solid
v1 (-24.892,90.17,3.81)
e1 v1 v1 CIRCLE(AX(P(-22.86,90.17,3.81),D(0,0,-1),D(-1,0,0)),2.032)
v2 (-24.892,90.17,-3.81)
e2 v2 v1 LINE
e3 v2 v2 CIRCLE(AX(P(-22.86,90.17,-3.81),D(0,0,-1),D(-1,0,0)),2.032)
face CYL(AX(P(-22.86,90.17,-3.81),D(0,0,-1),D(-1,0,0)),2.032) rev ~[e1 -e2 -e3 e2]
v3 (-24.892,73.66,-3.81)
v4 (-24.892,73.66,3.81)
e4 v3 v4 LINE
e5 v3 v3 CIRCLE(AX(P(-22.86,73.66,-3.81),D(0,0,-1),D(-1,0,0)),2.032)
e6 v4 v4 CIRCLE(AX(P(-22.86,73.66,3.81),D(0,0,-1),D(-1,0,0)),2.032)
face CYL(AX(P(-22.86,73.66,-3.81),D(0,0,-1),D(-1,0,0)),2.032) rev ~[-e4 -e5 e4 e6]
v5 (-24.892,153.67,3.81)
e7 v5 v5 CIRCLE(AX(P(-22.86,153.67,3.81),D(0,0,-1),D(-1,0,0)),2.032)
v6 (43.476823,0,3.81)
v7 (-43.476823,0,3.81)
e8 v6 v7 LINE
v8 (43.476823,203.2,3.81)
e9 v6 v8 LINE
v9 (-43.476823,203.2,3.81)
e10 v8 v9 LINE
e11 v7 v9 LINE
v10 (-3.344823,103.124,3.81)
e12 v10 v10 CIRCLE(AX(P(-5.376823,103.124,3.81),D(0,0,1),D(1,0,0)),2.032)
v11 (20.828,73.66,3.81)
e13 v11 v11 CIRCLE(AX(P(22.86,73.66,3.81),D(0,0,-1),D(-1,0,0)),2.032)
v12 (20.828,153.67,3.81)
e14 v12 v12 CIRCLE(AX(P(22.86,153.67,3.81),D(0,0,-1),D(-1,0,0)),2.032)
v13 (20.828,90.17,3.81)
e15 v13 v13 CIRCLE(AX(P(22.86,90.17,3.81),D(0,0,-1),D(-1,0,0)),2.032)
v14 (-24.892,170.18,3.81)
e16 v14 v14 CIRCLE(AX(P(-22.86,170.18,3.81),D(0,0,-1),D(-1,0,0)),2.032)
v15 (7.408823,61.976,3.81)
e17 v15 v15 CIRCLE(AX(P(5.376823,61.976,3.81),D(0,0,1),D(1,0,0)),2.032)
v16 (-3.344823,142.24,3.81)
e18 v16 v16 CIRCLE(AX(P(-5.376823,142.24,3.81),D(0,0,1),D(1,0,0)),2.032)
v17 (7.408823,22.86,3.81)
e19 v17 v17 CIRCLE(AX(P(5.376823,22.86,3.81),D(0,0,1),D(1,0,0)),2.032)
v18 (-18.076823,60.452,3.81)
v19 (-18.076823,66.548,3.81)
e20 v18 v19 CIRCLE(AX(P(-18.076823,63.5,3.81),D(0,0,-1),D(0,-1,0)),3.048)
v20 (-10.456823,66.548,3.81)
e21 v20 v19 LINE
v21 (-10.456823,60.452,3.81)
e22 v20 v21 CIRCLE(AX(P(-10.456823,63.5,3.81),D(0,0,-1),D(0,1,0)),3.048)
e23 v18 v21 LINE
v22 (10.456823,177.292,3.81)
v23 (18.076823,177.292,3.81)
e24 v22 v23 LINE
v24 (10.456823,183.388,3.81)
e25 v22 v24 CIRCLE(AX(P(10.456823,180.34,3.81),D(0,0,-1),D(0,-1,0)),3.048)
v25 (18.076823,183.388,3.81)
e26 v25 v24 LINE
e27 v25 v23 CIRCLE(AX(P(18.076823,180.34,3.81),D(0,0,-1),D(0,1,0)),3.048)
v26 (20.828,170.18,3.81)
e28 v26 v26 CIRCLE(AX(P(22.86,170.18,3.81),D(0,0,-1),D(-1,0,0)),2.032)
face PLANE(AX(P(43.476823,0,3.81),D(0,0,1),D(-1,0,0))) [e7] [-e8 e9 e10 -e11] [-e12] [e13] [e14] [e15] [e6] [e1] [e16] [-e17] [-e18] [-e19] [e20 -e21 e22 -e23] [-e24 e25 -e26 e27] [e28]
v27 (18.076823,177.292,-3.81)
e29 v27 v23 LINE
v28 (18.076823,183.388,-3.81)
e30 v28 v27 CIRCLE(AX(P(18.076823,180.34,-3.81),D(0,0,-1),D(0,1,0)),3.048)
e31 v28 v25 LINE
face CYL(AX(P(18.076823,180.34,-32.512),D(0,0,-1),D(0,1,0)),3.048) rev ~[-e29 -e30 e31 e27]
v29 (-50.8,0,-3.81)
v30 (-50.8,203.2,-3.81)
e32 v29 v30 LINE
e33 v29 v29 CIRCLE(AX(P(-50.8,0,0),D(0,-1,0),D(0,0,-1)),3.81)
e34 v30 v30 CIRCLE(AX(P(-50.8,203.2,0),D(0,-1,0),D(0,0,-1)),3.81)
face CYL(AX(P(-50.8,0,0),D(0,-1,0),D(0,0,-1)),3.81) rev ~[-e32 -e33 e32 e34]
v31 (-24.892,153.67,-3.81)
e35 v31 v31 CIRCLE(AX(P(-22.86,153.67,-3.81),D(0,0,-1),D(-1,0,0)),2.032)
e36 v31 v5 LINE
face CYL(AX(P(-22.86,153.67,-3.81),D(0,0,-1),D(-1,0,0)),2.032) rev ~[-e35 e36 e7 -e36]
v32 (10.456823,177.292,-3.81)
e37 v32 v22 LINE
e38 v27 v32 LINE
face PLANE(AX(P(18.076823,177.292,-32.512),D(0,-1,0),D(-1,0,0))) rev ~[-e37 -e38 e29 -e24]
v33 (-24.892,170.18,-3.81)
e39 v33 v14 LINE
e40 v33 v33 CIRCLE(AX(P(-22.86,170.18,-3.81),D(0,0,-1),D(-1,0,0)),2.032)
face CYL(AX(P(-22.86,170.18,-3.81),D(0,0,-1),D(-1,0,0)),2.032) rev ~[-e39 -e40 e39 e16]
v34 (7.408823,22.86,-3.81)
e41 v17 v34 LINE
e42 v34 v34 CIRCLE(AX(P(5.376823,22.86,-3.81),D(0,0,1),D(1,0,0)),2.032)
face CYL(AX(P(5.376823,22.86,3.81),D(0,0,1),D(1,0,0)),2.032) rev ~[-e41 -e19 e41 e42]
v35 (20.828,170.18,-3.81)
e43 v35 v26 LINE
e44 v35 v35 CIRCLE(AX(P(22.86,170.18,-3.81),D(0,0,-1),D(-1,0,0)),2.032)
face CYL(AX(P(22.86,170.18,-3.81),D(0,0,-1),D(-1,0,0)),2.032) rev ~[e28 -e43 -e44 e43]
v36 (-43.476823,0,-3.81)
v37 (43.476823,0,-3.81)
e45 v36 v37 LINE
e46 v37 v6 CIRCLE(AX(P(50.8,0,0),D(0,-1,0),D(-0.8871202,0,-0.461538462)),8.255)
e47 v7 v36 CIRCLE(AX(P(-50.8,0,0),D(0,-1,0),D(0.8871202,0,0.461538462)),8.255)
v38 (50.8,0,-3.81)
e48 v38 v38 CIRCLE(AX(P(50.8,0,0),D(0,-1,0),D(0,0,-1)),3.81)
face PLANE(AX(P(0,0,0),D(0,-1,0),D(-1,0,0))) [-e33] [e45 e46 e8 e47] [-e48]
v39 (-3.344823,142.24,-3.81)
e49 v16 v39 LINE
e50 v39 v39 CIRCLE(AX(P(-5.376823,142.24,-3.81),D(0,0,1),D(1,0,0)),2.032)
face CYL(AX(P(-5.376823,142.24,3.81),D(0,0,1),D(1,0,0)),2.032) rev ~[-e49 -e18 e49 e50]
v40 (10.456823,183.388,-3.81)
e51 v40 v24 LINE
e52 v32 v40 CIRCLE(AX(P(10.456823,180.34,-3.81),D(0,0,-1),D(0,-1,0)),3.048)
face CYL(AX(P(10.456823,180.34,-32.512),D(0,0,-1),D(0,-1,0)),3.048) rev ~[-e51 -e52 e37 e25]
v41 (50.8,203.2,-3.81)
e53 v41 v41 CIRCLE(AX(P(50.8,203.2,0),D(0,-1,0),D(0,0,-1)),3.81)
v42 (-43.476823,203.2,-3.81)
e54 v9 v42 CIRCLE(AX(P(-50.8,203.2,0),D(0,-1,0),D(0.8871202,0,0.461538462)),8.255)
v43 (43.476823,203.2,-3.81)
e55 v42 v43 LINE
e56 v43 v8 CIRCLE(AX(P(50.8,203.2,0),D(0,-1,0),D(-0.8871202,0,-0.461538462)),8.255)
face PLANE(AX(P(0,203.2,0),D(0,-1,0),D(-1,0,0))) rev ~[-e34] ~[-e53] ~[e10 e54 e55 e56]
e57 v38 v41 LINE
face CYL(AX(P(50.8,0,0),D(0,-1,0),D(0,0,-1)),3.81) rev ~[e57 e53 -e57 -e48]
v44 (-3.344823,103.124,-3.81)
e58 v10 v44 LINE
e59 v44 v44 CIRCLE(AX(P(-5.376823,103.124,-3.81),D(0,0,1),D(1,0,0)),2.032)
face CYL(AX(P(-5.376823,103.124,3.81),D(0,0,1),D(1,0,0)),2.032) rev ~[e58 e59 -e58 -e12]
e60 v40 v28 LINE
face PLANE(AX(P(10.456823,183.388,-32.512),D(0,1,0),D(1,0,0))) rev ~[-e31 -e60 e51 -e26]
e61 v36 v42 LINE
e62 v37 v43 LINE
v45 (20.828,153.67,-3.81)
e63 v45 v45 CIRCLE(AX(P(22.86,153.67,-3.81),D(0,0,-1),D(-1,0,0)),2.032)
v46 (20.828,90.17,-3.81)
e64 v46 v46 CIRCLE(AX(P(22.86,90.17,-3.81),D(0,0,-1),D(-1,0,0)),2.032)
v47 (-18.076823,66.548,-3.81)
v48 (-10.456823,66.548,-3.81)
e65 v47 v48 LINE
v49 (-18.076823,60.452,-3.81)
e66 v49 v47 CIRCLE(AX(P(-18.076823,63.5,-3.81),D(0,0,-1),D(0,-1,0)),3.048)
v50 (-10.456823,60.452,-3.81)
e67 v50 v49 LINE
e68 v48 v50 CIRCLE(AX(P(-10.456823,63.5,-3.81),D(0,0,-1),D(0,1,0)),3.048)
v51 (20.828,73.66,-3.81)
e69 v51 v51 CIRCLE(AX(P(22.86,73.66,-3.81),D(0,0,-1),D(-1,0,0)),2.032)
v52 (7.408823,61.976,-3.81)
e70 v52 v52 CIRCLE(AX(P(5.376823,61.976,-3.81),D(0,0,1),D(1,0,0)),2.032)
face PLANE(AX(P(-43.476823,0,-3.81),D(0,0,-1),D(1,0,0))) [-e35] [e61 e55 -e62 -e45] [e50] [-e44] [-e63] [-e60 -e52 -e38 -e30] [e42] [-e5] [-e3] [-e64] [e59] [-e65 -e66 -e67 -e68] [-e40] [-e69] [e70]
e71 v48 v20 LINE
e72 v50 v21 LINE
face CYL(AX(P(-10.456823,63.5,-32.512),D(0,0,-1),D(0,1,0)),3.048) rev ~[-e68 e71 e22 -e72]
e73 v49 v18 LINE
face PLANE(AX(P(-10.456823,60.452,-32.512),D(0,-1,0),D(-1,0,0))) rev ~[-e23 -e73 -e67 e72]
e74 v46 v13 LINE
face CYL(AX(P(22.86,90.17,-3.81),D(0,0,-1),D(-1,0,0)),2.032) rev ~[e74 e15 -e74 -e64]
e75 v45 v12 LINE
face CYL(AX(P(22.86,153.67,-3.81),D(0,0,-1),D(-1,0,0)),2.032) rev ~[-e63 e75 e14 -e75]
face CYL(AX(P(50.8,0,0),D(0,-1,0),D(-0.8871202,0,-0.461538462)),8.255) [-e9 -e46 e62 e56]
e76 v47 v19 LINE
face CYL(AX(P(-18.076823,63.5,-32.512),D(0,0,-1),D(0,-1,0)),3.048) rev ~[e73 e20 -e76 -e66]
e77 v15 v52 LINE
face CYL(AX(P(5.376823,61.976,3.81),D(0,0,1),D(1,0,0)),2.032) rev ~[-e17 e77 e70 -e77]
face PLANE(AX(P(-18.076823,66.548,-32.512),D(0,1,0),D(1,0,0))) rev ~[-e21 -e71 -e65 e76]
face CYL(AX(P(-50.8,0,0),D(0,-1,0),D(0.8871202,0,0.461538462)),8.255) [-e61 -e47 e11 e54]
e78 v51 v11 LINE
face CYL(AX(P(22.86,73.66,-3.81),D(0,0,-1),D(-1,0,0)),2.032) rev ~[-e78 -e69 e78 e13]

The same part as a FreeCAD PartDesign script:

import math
import FreeCAD as App
import Part
import Sketcher

V = App.Vector
Q = App.Units.Quantity

doc = App.newDocument("Part")
body = doc.addObject("PartDesign::Body", "Body")

sketch1 = doc.addObject("Sketcher::SketchObject", "Sketch")
body.addObject(sketch1)
sketch1.AttachmentSupport = (doc.XZ_Plane, [""])
sketch1.MapMode = "FlatFace"
sketch1.addGeometry(Part.LineSegment(V(43, -4, 0), V(-43, -4, 0)), False)
sketch1.addGeometry(Part.ArcOfCircle(Part.Circle(V(-51, 0, 0), V(0, 0, 1), 8), math.radians(27), math.radians(333)), False)
sketch1.addGeometry(Part.LineSegment(V(-43, 4, 0), V(43, 4, 0)), False)
sketch1.addGeometry(Part.ArcOfCircle(Part.Circle(V(51, 0, 0), V(0, 0, 1), 8), math.radians(-153), math.radians(153)), False)
sketch1.addConstraint(Sketcher.Constraint("Coincident", 0, 2, 1, 2))
sketch1.addConstraint(Sketcher.Constraint("Coincident", 1, 1, 2, 1))
sketch1.addConstraint(Sketcher.Constraint("Coincident", 2, 2, 3, 2))
sketch1.addConstraint(Sketcher.Constraint("Coincident", 3, 1, 0, 1))
sketch1.addConstraint(Sketcher.Constraint("Horizontal", 0))
sketch1.addConstraint(Sketcher.Constraint("Horizontal", 2))
sketch1.addConstraint(Sketcher.Constraint("Equal", 1, 3))
sketch1.addConstraint(Sketcher.Constraint("Symmetric", 1, 3, 3, 3, -1, 1))
sketch1.addConstraint(Sketcher.Constraint("Symmetric", 0, 2, 1, 1, -1))
sketch1.addConstraint(Sketcher.Constraint("DistanceX", 1, 3, -1, 1, Q("2 in")))
sketch1.addConstraint(Sketcher.Constraint("Radius", 1, Q("0.325 in")))
sketch1.addConstraint(Sketcher.Constraint("DistanceY", 0, 2, 1, 1, Q("0.3 in")))
pad1 = doc.addObject("PartDesign::Pad", "Pad")
body.addObject(pad1)
pad1.Profile = sketch1
pad1.Length = Q("8 in")
pad1.Reversed = True

sketch2 = doc.addObject("Sketcher::SketchObject", "Sketch001")
body.addObject(sketch2)
sketch2.AttachmentSupport = (doc.XZ_Plane, [""])
sketch2.MapMode = "FlatFace"
sketch2.addGeometry(Part.Circle(V(-50.8, 0, 0), V(0, 0, 1), 3.8), False)
sketch2.addGeometry(Part.Circle(V(50.8, 0, 0), V(0, 0, 1), 3.8), False)
sketch2.addConstraint(Sketcher.Constraint("Equal", 0, 1))
sketch2.addConstraint(Sketcher.Constraint("Symmetric", 0, 3, 1, 3, -1, 1))
sketch2.addConstraint(Sketcher.Constraint("PointOnObject", 0, 3, -1))
sketch2.addConstraint(Sketcher.Constraint("Diameter", 0, Q("0.3 in")))
sketch2.addConstraint(Sketcher.Constraint("DistanceX", 0, 3, -1, 1, Q("2 in")))
pocket1 = doc.addObject("PartDesign::Pocket", "Pocket")
body.addObject(pocket1)
pocket1.Profile = sketch2
pocket1.Length = Q("8 in")

sketch3 = doc.addObject("Sketcher::SketchObject", "Sketch002")
body.addObject(sketch3)
sketch3.AttachmentSupport = (doc.XY_Plane, [""])
sketch3.MapMode = "FlatFace"
sketch3.AttachmentOffset = App.Placement(V(0, 0, 0.15 * 25.4), App.Rotation())
sketch3.addGeometry(Part.LineSegment(V(10.5, 177.3, 0), V(18.1, 177.3, 0)), False)
sketch3.addGeometry(Part.ArcOfCircle(Part.Circle(V(18.1, 180.3, 0), V(0, 0, 1), 3), math.radians(-90), math.radians(90)), False)
sketch3.addGeometry(Part.LineSegment(V(18.1, 183.4, 0), V(10.5, 183.4, 0)), False)
sketch3.addGeometry(Part.ArcOfCircle(Part.Circle(V(10.5, 180.3, 0), V(0, 0, 1), 3), math.radians(90), math.radians(270)), False)
sketch3.addGeometry(Part.LineSegment(V(-10.5, 66.5, 0), V(-18.1, 66.5, 0)), False)
sketch3.addGeometry(Part.ArcOfCircle(Part.Circle(V(-18.1, 63.5, 0), V(0, 0, 1), 3), math.radians(90), math.radians(270)), False)
sketch3.addGeometry(Part.LineSegment(V(-18.1, 60.5, 0), V(-10.5, 60.5, 0)), False)
sketch3.addGeometry(Part.ArcOfCircle(Part.Circle(V(-10.5, 63.5, 0), V(0, 0, 1), 3), math.radians(-90), math.radians(90)), False)
sketch3.addConstraint(Sketcher.Constraint("Tangent", 0, 2, 1, 1))
sketch3.addConstraint(Sketcher.Constraint("Tangent", 1, 2, 2, 1))
sketch3.addConstraint(Sketcher.Constraint("Tangent", 2, 2, 3, 1))
sketch3.addConstraint(Sketcher.Constraint("Tangent", 3, 2, 0, 1))
sketch3.addConstraint(Sketcher.Constraint("Tangent", 4, 2, 5, 1))
sketch3.addConstraint(Sketcher.Constraint("Tangent", 5, 2, 6, 1))
sketch3.addConstraint(Sketcher.Constraint("Tangent", 6, 2, 7, 1))
sketch3.addConstraint(Sketcher.Constraint("Tangent", 7, 2, 4, 1))
sketch3.addConstraint(Sketcher.Constraint("Horizontal", 0))
sketch3.addConstraint(Sketcher.Constraint("Horizontal", 2))
sketch3.addConstraint(Sketcher.Constraint("Horizontal", 4))
sketch3.addConstraint(Sketcher.Constraint("Horizontal", 6))
sketch3.addConstraint(Sketcher.Constraint("Equal", 3, 5))
sketch3.addConstraint(Sketcher.Constraint("Equal", 2, 4))
sketch3.addConstraint(Sketcher.Constraint("Radius", 1, Q("0.12 in")))
sketch3.addConstraint(Sketcher.Constraint("DistanceX", 0, 1, 0, 2, Q("0.3 in")))
sketch3.addConstraint(Sketcher.Constraint("DistanceY", -1, 1, 1, 3, Q("7.1 in")))
sketch3.addConstraint(Sketcher.Constraint("DistanceY", -1, 1, 5, 3, Q("2.5 in")))
sketch3.addConstraint(Sketcher.Constraint("DistanceX", -1, 1, 1, 3, Q("18.076823 mm")))
sketch3.addConstraint(Sketcher.Constraint("DistanceX", 5, 3, -1, 1, Q("18.076823 mm")))
pocket2 = doc.addObject("PartDesign::Pocket", "Pocket001")
body.addObject(pocket2)
pocket2.Profile = sketch3
pocket2.Type = "ThroughAll"
pocket2.Midplane = True

sketch4 = doc.addObject("Sketcher::SketchObject", "Sketch003")
body.addObject(sketch4)
sketch4.AttachmentSupport = (doc.XY_Plane, [""])
sketch4.MapMode = "FlatFace"
sketch4.AttachmentOffset = App.Placement(V(0, 0, -0.15 * 25.4), App.Rotation())
sketch4.addGeometry(Part.Circle(V(22.9, 170.2, 0), V(0, 0, 1), 2), False)
sketch4.addGeometry(Part.Circle(V(22.9, 153.7, 0), V(0, 0, 1), 2), False)
sketch4.addGeometry(Part.Circle(V(-22.9, 170.2, 0), V(0, 0, 1), 2), False)
sketch4.addGeometry(Part.Circle(V(-22.9, 153.7, 0), V(0, 0, 1), 2), False)
sketch4.addGeometry(Part.Circle(V(22.9, 90.2, 0), V(0, 0, 1), 2), False)
sketch4.addGeometry(Part.Circle(V(22.9, 73.7, 0), V(0, 0, 1), 2), False)
sketch4.addGeometry(Part.Circle(V(-22.9, 90.2, 0), V(0, 0, 1), 2), False)
sketch4.addGeometry(Part.Circle(V(-22.9, 73.7, 0), V(0, 0, 1), 2), False)
sketch4.addConstraint(Sketcher.Constraint("Equal", 0, 1))
sketch4.addConstraint(Sketcher.Constraint("Equal", 1, 2))
sketch4.addConstraint(Sketcher.Constraint("Equal", 2, 3))
sketch4.addConstraint(Sketcher.Constraint("Equal", 3, 4))
sketch4.addConstraint(Sketcher.Constraint("Equal", 4, 5))
sketch4.addConstraint(Sketcher.Constraint("Equal", 5, 6))
sketch4.addConstraint(Sketcher.Constraint("Equal", 6, 7))
sketch4.addConstraint(Sketcher.Constraint("Symmetric", 0, 3, 2, 3, -2))
sketch4.addConstraint(Sketcher.Constraint("Symmetric", 1, 3, 3, 3, -2))
sketch4.addConstraint(Sketcher.Constraint("Symmetric", 4, 3, 6, 3, -2))
sketch4.addConstraint(Sketcher.Constraint("Symmetric", 5, 3, 7, 3, -2))
sketch4.addConstraint(Sketcher.Constraint("Vertical", 0, 3, 1, 3))
sketch4.addConstraint(Sketcher.Constraint("Vertical", 1, 3, 4, 3))
sketch4.addConstraint(Sketcher.Constraint("Vertical", 4, 3, 5, 3))
sketch4.addConstraint(Sketcher.Constraint("Diameter", 0, Q("0.16 in")))
sketch4.addConstraint(Sketcher.Constraint("DistanceX", -1, 1, 0, 3, Q("0.9 in")))
sketch4.addConstraint(Sketcher.Constraint("DistanceY", -1, 1, 0, 3, Q("6.7 in")))
sketch4.addConstraint(Sketcher.Constraint("DistanceY", -1, 1, 5, 3, Q("2.9 in")))
sketch4.addConstraint(Sketcher.Constraint("DistanceY", 4, 3, 1, 3, Q("2.5 in")))
sketch4.addConstraint(Sketcher.Constraint("DistanceY", -1, 1, 1, 3, Q("6.05 in")))
pocket3 = doc.addObject("PartDesign::Pocket", "Pocket002")
body.addObject(pocket3)
pocket3.Profile = sketch4
pocket3.Length = Q("1.81 in")
pocket3.Reversed = True

sketch5 = doc.addObject("Sketcher::SketchObject", "Sketch004")
body.addObject(sketch5)
sketch5.AttachmentSupport = (doc.XY_Plane, [""])
sketch5.MapMode = "FlatFace"
sketch5.AttachmentOffset = App.Placement(V(0, 0, 0.15 * 25.4), App.Rotation())
sketch5.addGeometry(Part.Circle(V(5.4, 62, 0), V(0, 0, 1), 2), False)
sketch5.addGeometry(Part.Circle(V(5.4, 22.9, 0), V(0, 0, 1), 2), False)
sketch5.addGeometry(Part.Circle(V(-5.4, 142.2, 0), V(0, 0, 1), 2), False)
sketch5.addGeometry(Part.Circle(V(-5.4, 103.1, 0), V(0, 0, 1), 2), False)
sketch5.addConstraint(Sketcher.Constraint("Equal", 0, 1))
sketch5.addConstraint(Sketcher.Constraint("Equal", 1, 2))
sketch5.addConstraint(Sketcher.Constraint("Equal", 2, 3))
sketch5.addConstraint(Sketcher.Constraint("Vertical", 0, 3, 1, 3))
sketch5.addConstraint(Sketcher.Constraint("Vertical", 2, 3, 3, 3))
sketch5.addConstraint(Sketcher.Constraint("Diameter", 0, Q("0.16 in")))
sketch5.addConstraint(Sketcher.Constraint("DistanceY", -1, 1, 1, 3, Q("0.9 in")))
sketch5.addConstraint(Sketcher.Constraint("DistanceY", -1, 1, 2, 3, Q("5.6 in")))
sketch5.addConstraint(Sketcher.Constraint("DistanceY", -1, 1, 0, 3, Q("2.44 in")))
sketch5.addConstraint(Sketcher.Constraint("DistanceY", -1, 1, 3, 3, Q("4.06 in")))
sketch5.addConstraint(Sketcher.Constraint("DistanceX", -1, 1, 0, 3, Q("5.376823 mm")))
sketch5.addConstraint(Sketcher.Constraint("DistanceX", 2, 3, -1, 1, Q("5.376823 mm")))
pocket4 = doc.addObject("PartDesign::Pocket", "Pocket003")
body.addObject(pocket4)
pocket4.Profile = sketch5
pocket4.Length = Q("0.3 in")

doc.recompute()
